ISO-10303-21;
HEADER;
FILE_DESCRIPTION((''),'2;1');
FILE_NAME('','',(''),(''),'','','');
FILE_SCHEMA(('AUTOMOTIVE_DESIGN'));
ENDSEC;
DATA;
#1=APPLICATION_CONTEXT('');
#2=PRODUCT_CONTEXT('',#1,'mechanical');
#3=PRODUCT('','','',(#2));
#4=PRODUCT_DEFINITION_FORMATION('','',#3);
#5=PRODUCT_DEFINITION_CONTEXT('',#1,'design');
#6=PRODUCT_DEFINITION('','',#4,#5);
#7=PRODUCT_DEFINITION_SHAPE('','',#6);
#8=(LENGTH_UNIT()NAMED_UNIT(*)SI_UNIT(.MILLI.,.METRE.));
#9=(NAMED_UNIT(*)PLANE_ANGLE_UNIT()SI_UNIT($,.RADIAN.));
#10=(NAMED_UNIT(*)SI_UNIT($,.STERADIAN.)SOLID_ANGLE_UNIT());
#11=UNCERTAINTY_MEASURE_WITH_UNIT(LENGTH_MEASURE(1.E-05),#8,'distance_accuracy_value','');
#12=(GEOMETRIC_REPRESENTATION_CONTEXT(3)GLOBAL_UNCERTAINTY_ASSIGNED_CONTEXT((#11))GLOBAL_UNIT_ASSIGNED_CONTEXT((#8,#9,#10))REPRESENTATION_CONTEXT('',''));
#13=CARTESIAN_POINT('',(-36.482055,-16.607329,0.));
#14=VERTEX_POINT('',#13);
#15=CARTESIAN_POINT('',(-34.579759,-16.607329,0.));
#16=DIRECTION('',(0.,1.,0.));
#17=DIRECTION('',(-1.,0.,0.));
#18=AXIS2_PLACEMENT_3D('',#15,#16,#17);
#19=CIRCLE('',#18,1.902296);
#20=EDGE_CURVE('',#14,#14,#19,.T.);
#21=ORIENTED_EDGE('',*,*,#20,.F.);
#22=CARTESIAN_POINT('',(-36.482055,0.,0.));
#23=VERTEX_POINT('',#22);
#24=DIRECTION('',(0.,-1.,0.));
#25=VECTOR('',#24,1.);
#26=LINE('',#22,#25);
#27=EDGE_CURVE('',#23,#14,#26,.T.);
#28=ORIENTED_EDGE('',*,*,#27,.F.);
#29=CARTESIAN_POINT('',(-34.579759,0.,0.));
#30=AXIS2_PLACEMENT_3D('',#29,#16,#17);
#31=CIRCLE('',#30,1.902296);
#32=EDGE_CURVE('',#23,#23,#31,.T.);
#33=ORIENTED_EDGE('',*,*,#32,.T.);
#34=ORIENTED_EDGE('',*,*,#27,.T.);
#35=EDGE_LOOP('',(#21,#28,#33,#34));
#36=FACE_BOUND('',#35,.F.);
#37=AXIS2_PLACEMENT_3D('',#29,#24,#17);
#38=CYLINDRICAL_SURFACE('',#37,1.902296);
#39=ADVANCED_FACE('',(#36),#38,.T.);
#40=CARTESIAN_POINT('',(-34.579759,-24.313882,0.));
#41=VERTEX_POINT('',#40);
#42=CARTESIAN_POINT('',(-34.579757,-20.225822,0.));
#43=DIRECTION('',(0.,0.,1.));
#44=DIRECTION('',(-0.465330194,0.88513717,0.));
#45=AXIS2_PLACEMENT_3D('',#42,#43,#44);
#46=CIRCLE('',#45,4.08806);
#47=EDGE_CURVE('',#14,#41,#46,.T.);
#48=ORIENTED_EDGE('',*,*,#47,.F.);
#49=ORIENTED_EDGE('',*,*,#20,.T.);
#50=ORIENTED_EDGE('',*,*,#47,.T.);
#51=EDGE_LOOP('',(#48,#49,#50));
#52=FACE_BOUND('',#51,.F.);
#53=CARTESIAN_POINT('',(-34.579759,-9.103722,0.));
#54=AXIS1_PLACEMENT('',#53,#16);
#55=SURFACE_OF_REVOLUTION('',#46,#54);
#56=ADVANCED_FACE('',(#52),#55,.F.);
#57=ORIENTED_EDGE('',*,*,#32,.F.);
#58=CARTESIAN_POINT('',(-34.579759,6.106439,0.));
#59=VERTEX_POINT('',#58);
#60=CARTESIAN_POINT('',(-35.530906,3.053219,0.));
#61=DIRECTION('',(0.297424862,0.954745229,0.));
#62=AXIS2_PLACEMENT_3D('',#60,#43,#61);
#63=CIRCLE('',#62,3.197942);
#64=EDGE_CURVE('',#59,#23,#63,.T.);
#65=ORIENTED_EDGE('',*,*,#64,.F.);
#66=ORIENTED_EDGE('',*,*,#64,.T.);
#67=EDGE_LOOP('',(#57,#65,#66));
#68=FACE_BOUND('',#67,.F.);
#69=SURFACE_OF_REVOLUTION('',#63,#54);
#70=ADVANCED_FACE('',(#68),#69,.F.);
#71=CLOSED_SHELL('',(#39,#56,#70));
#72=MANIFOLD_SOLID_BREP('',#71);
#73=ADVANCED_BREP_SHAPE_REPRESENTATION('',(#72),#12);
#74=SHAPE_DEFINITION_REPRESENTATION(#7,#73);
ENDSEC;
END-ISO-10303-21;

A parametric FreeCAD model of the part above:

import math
import FreeCAD as App
import Part
import Sketcher
from FreeCAD import Vector
Q = App.Units.Quantity

doc = App.newDocument("Part")
body = doc.addObject("PartDesign::Body", "Body")

sketch1 = body.newObject("Sketcher::SketchObject", "Sketch")
sketch1.AttachmentSupport = (doc.getObject("XY_Plane"), [""])
sketch1.MapMode = "FlatFace"
sketch1.addGeometry([
    Part.LineSegment(Vector(-36.482055, 0, 0), Vector(-36.482055, -16.607329, 0)),
    Part.ArcOfCircle(Part.Circle(Vector(-34.579757, -20.225822, 0), Vector(0, 0, 1), 4.08806), math.radians(117.731594), math.radians(269.999978)),
    Part.LineSegment(Vector(-34.579759, -24.313882, 0), Vector(-34.579759, 6.106439, 0)),
    Part.ArcOfCircle(Part.Circle(Vector(-35.530906, 3.053219, 0), Vector(0, 0, 1), 3.197942), math.radians(72.697), math.radians(252.696978)),
], False)
sketch1.addGeometry(Part.LineSegment(Vector(-34.579759, -24.313882, 0), Vector(-34.579759, 6.106439, 0)), True)
sketch1.addConstraint([
    Sketcher.Constraint("Coincident", 0, 2, 1, 1),
    Sketcher.Constraint("Coincident", 1, 2, 2, 1),
    Sketcher.Constraint("Coincident", 2, 2, 3, 1),
    Sketcher.Constraint("Coincident", 3, 2, 0, 1),
    Sketcher.Constraint("Vertical", 0),
    Sketcher.Constraint("Vertical", 2),
    Sketcher.Constraint("Vertical", 4),
    Sketcher.Constraint("Coincident", 4, 1, 1, 2),
    Sketcher.Constraint("PointOnObject", 3, 2, -1),
    Sketcher.Constraint("Equal", 2, 4),
    Sketcher.Constraint("Radius", 1, Q("4.08806 mm")),
    Sketcher.Constraint("Radius", 3, Q("3.197942 mm")),
    Sketcher.Constraint("DistanceY", 0, 2, 0, 1, Q("16.607329 mm")),
    Sketcher.Constraint("DistanceY", 2, 1, 2, 2, Q("30.420321 mm")),
    Sketcher.Constraint("DistanceY", 1, 2, 3, 3, Q("27.367101 mm")),
    Sketcher.Constraint("DistanceY", -1, 1, 3, 3, Q("3.053219 mm")),
    Sketcher.Constraint("DistanceX", 1, 2, -1, 1, Q("34.579759 mm")),
])
revolution = body.newObject("PartDesign::Revolution", "Revolution")
revolution.Profile = sketch1
revolution.ReferenceAxis = (sketch1, ["Axis0"])
revolution.Angle = 360

doc.recompute()
